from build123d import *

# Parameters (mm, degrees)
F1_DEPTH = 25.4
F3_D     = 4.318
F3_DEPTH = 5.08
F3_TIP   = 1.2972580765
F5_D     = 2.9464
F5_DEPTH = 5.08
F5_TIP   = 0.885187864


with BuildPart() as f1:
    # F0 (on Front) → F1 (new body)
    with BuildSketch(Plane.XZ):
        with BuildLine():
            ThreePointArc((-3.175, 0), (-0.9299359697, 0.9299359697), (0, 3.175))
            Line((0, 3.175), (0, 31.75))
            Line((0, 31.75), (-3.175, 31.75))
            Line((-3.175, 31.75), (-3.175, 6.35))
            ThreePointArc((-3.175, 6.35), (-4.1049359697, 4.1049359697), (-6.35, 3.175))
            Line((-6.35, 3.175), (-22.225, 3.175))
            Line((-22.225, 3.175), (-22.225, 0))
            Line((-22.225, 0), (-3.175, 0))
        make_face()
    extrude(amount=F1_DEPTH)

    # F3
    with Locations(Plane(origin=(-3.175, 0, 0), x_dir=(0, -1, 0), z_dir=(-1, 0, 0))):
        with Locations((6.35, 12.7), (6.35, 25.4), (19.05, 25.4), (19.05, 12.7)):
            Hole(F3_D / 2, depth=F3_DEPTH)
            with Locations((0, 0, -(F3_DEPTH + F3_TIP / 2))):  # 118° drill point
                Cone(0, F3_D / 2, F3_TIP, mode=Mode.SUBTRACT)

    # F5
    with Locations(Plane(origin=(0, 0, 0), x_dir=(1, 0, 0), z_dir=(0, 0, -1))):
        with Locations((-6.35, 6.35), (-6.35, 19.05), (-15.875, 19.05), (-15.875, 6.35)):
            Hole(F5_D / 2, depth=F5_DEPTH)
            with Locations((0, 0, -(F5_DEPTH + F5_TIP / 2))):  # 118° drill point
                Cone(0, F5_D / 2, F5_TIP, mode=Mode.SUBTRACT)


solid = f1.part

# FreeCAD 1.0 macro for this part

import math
import FreeCAD as App
import Part
import Sketcher

V = App.Vector
Q = App.Units.Quantity

doc = App.newDocument("Part")
body = doc.addObject("PartDesign::Body", "Body")

# Sketch on XZ plane
sketch1 = body.newObject("Sketcher::SketchObject", "Sketch")
sketch1.AttachmentSupport = (doc.getObject("XZ_Plane"), [""])
sketch1.MapMode = "FlatFace"
sketch1.addGeometry([
    Part.ArcOfCircle(Part.Circle(V(-3.2, 3.2, 0), V(0, 0, 1), 3.2), math.radians(-90), math.radians(0)),  # 0
    Part.LineSegment(V(0, 3.2, 0), V(0, 31.8, 0)),  # 1
    Part.LineSegment(V(0, 31.8, 0), V(-3.2, 31.8, 0)),  # 2
    Part.LineSegment(V(-3.2, 31.8, 0), V(-3.2, 6.3, 0)),  # 3
    Part.ArcOfCircle(Part.Circle(V(-6.3, 6.3, 0), V(0, 0, 1), 3.2), math.radians(-90), math.radians(0)),  # 4
    Part.LineSegment(V(-6.3, 3.2, 0), V(-22.2, 3.2, 0)),  # 5
    Part.LineSegment(V(-22.2, 3.2, 0), V(-22.2, 0, 0)),  # 6
    Part.LineSegment(V(-22.2, 0, 0), V(-3.2, 0, 0)),  # 7
], False)
sketch1.addConstraint([
    Sketcher.Constraint("Tangent", 0, 2, 1, 1),
    Sketcher.Constraint("Coincident", 1, 2, 2, 1),
    Sketcher.Constraint("Coincident", 2, 2, 3, 1),
    Sketcher.Constraint("Tangent", 3, 2, 4, 2),
    Sketcher.Constraint("Tangent", 4, 1, 5, 1),
    Sketcher.Constraint("Coincident", 5, 2, 6, 1),
    Sketcher.Constraint("Coincident", 6, 2, 7, 1),
    Sketcher.Constraint("Tangent", 7, 2, 0, 1),
    Sketcher.Constraint("Vertical", 1),
    Sketcher.Constraint("Horizontal", 2),
    Sketcher.Constraint("Vertical", 3),
    Sketcher.Constraint("Horizontal", 5),
    Sketcher.Constraint("Vertical", 6),
    Sketcher.Constraint("Horizontal", 7),
    Sketcher.Constraint("Equal", 0, 4),
    Sketcher.Constraint("PointOnObject", 0, 2, -2),
    Sketcher.Constraint("PointOnObject", 6, 2, -1),
    Sketcher.Constraint("Horizontal", 0, 2, 4, 1),
    Sketcher.Constraint("Vertical", 0, 3, 2, 2),
    Sketcher.Constraint("DistanceY", 3, 2, 3, 1, Q("1 in")),
    Sketcher.Constraint("Radius", 0, Q("0.125 in")),
    Sketcher.Constraint("DistanceX", 7, 1, 7, 2, Q("0.75 in")),
])
pad1 = body.newObject("PartDesign::Pad", "Pad")
pad1.Profile = sketch1
pad1.Length = Q("1 in")

# Sketch on YZ plane
sketch2 = body.newObject("Sketcher::SketchObject", "Sketch001")
sketch2.AttachmentSupport = (doc.getObject("YZ_Plane"), [""])
sketch2.MapMode = "FlatFace"
sketch2.AttachmentOffset = App.Placement(V(0, 0, -0.125 * 25.4), App.Rotation())
sketch2.addGeometry([
    Part.Circle(V(-6.3, 12.7, 0), V(0, 0, 1), 2.2),
    Part.Circle(V(-6.3, 25.4, 0), V(0, 0, 1), 2.2),
    Part.Circle(V(-19.1, 25.4, 0), V(0, 0, 1), 2.2),
    Part.Circle(V(-19.1, 12.7, 0), V(0, 0, 1), 2.2),
], False)
sketch2.addConstraint([
    Sketcher.Constraint("Equal", 0, 1),
    Sketcher.Constraint("Equal", 1, 2),
    Sketcher.Constraint("Equal", 2, 3),
    Sketcher.Constraint("Horizontal", 1, 3, 2, 3),
    Sketcher.Constraint("Horizontal", 0, 3, 3, 3),
    Sketcher.Constraint("Vertical", 0, 3, 1, 3),
    Sketcher.Constraint("Vertical", 2, 3, 3, 3),
    Sketcher.Constraint("Diameter", 0, Q("0.17 in")),
    Sketcher.Constraint("DistanceY", -1, 1, 1, 3, Q("1 in")),
    Sketcher.Constraint("DistanceY", -1, 1, 0, 3, Q("0.5 in")),
    Sketcher.Constraint("DistanceX", 2, 3, 1, 3, Q("0.5 in")),
    Sketcher.Constraint("DistanceX", 0, 3, -1, 1, Q("0.25 in")),
])
doc.recompute()
hole = body.newObject("PartDesign::Hole", "Hole")
hole.Profile = sketch2
hole.ThreadType = "None"
hole.Diameter = Q("0.17 in")
hole.DepthType = "Dimension"
hole.Depth = Q("0.2 in")
hole.DrillPoint = "Angled"
hole.DrillPointAngle = 118
hole.Reversed = True

# Sketch on XY plane
sketch3 = body.newObject("Sketcher::SketchObject", "Sketch002")
sketch3.AttachmentSupport = (doc.getObject("XY_Plane"), [""])
sketch3.MapMode = "FlatFace"
sketch3.addGeometry([
    Part.Circle(V(-6.3, -6.3, 0), V(0, 0, 1), 1.5),
    Part.Circle(V(-6.3, -19.1, 0), V(0, 0, 1), 1.5),
    Part.Circle(V(-15.9, -19.1, 0), V(0, 0, 1), 1.5),
    Part.Circle(V(-15.9, -6.3, 0), V(0, 0, 1), 1.5),
], False)
sketch3.addConstraint([
    Sketcher.Constraint("Equal", 0, 1),
    Sketcher.Constraint("Equal", 1, 2),
    Sketcher.Constraint("Equal", 2, 3),
    Sketcher.Constraint("Horizontal", 1, 3, 2, 3),
    Sketcher.Constraint("Horizontal", 0, 3, 3, 3),
    Sketcher.Constraint("Vertical", 0, 3, 1, 3),
    Sketcher.Constraint("Vertical", 2, 3, 3, 3),
    Sketcher.Constraint("Diameter", 0, Q("0.116 in")),
    Sketcher.Constraint("DistanceY", 1, 3, 0, 3, Q("0.5 in")),
    Sketcher.Constraint("DistanceX", 0, 3, -1, 1, Q("0.25 in")),
    Sketcher.Constraint("DistanceY", 0, 3, -1, 1, Q("0.25 in")),
    Sketcher.Constraint("DistanceX", 2, 3, -1, 1, Q("0.625 in")),
])
doc.recompute()
hole2 = body.newObject("PartDesign::Hole", "Hole001")
hole2.Profile = sketch3
hole2.ThreadType = "None"
hole2.Diameter = Q("0.116 in")
hole2.DepthType = "Dimension"
hole2.Depth = Q("0.2 in")
hole2.DrillPoint = "Angled"
hole2.DrillPointAngle = 118
hole2.Reversed = True

doc.recompute()
